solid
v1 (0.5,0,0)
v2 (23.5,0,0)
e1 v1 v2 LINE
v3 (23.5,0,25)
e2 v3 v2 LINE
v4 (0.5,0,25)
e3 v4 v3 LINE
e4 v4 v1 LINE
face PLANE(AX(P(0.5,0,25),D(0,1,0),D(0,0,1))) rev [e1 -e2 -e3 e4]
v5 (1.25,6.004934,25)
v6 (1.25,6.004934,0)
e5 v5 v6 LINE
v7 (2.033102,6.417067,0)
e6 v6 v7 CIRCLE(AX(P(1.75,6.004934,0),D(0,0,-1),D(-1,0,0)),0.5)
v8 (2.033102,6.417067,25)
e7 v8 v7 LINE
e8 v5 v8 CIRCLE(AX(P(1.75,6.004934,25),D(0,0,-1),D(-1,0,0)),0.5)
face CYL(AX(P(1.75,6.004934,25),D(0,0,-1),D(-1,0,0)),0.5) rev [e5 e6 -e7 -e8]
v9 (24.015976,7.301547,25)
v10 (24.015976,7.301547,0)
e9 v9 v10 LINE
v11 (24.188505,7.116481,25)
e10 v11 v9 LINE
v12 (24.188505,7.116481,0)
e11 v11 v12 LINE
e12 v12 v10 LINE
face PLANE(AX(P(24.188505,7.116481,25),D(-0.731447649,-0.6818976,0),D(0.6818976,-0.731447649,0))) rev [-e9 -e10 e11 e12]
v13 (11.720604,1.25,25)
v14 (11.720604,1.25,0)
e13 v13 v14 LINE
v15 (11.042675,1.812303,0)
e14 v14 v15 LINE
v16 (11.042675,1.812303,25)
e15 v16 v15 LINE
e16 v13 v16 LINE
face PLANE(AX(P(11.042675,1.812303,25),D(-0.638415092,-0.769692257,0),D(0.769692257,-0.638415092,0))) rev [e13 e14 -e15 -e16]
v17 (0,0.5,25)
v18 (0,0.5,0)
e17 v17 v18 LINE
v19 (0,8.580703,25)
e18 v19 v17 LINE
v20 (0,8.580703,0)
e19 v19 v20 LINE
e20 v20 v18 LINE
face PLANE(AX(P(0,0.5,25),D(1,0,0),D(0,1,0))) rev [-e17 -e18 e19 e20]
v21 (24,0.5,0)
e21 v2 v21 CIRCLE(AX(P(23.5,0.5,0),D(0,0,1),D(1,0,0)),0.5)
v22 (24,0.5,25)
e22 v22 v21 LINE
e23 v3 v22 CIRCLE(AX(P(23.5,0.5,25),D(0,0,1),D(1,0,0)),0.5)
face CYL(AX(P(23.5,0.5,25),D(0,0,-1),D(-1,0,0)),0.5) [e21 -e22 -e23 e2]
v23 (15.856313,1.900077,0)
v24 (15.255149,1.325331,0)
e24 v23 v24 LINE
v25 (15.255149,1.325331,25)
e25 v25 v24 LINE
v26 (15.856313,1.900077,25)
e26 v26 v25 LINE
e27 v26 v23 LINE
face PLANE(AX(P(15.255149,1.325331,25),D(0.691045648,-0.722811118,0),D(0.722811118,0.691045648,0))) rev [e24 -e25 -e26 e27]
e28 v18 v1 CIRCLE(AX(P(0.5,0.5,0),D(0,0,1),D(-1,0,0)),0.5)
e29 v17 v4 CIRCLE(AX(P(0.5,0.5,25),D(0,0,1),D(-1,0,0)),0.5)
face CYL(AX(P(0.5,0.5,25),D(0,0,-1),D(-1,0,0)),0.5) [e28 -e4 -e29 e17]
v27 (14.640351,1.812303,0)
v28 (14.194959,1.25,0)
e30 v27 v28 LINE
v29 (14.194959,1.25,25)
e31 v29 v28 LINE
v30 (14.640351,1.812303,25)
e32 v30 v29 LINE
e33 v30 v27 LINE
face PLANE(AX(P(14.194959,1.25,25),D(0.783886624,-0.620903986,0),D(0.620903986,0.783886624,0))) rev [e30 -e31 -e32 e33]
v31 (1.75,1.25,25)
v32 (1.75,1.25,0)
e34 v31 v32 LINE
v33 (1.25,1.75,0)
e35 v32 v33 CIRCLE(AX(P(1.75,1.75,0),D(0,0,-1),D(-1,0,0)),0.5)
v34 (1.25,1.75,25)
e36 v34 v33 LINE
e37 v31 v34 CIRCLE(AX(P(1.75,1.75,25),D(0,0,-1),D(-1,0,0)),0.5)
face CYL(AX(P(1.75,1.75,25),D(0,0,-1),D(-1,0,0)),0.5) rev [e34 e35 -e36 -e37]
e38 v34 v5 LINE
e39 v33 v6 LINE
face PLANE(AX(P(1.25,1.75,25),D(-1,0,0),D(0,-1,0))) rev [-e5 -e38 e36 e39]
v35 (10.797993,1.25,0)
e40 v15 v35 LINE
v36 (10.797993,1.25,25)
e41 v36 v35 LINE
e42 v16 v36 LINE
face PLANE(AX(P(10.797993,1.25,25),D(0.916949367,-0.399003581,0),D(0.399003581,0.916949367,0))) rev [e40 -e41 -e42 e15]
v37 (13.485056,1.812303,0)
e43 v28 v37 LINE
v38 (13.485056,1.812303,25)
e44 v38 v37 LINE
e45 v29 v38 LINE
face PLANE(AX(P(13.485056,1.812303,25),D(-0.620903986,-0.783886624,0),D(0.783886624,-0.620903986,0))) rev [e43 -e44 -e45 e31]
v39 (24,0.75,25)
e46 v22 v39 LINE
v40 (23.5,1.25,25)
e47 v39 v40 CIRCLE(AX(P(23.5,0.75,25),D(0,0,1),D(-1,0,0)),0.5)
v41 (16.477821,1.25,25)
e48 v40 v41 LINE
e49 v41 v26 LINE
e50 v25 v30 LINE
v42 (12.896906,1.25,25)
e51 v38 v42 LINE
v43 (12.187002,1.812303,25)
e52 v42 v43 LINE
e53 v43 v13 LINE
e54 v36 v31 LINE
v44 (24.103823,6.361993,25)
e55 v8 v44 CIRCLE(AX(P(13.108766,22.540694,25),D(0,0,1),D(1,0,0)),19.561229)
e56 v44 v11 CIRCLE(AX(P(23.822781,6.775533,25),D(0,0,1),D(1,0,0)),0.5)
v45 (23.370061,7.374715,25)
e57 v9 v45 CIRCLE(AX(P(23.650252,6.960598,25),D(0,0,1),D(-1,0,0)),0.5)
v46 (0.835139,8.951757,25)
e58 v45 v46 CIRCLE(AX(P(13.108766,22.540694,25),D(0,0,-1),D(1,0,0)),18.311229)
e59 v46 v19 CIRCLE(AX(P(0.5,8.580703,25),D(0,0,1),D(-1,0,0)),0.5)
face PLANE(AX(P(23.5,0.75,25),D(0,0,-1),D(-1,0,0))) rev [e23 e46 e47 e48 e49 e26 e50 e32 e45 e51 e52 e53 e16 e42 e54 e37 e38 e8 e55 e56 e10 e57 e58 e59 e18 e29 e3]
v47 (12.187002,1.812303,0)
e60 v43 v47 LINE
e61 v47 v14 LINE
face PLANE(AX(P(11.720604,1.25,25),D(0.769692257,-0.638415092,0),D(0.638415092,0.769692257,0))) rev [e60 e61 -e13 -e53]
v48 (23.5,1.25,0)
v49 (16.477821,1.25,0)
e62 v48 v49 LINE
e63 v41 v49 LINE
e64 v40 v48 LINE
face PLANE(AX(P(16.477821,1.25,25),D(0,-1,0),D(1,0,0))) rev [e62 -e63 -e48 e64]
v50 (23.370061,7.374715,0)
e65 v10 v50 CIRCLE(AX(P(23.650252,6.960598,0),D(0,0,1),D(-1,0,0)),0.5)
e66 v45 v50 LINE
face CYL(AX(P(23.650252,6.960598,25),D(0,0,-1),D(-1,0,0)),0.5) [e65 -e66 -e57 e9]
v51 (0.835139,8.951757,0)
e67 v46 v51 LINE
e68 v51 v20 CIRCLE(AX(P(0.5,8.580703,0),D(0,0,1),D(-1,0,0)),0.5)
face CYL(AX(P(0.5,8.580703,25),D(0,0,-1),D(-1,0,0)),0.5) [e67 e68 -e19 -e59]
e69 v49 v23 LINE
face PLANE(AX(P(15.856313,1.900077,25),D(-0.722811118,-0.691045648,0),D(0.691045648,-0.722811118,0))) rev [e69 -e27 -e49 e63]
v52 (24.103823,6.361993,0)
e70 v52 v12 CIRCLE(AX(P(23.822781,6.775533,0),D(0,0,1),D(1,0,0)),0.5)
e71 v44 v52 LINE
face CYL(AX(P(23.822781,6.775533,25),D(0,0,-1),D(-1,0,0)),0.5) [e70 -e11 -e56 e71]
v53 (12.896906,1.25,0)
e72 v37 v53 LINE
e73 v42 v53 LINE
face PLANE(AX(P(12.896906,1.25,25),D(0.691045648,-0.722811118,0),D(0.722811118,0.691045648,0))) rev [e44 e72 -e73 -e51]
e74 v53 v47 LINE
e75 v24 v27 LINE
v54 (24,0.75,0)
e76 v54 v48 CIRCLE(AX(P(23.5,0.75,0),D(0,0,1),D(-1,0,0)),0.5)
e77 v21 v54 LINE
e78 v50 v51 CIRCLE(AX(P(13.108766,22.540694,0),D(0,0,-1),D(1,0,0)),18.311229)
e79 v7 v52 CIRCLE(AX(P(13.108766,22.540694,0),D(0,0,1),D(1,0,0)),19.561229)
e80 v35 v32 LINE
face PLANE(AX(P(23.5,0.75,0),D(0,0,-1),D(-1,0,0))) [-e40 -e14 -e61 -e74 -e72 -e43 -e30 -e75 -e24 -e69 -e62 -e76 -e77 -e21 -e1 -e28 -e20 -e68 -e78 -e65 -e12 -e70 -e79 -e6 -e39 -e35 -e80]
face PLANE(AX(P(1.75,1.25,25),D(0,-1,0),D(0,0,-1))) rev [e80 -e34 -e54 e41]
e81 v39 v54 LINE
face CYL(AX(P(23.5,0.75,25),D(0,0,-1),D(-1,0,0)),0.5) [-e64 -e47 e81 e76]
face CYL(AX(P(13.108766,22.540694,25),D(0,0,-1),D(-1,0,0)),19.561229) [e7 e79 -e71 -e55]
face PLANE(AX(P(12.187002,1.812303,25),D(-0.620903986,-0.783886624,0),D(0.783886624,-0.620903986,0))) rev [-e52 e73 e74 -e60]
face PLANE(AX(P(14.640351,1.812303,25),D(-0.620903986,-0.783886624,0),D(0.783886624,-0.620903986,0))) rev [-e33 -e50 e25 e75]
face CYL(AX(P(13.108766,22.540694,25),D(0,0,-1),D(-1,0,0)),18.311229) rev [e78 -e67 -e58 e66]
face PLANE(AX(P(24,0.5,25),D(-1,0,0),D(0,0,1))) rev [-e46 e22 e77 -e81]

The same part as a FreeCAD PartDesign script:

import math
import FreeCAD as App
import Part
import Sketcher

doc = App.newDocument("Part")
body = doc.addObject("PartDesign::Body", "Body")

sketch1 = body.newObject("Sketcher::SketchObject", "Sketch")
sketch1.AttachmentSupport = (doc.getObject("XY_Plane"), [""])
sketch1.MapMode = "FlatFace"
sketch1.addGeometry(Part.LineSegment(App.Vector(0.5, 0, 0), App.Vector(23.5, 0, 0)), False)
sketch1.addGeometry(Part.ArcOfCircle(Part.Circle(App.Vector(23.5, 0.5, 0), App.Vector(0, 0, 1), 0.5), math.radians(-90), math.radians(0)), False)
sketch1.addGeometry(Part.LineSegment(App.Vector(24, 0.5, 0), App.Vector(24, 0.75, 0)), False)
sketch1.addGeometry(Part.ArcOfCircle(Part.Circle(App.Vector(23.5, 0.75, 0), App.Vector(0, 0, 1), 0.5), math.radians(0), math.radians(90)), False)
sketch1.addGeometry(Part.LineSegment(App.Vector(23.5, 1.25, 0), App.Vector(16.48, 1.25, 0)), False)
sketch1.addGeometry(Part.LineSegment(App.Vector(16.48, 1.25, 0), App.Vector(15.86, 1.9, 0)), False)
sketch1.addGeometry(Part.LineSegment(App.Vector(15.86, 1.9, 0), App.Vector(15.26, 1.33, 0)), False)
sketch1.addGeometry(Part.LineSegment(App.Vector(15.26, 1.33, 0), App.Vector(14.64, 1.81, 0)), False)
sketch1.addGeometry(Part.LineSegment(App.Vector(14.64, 1.81, 0), App.Vector(14.19, 1.25, 0)), False)
sketch1.addGeometry(Part.LineSegment(App.Vector(14.19, 1.25, 0), App.Vector(13.49, 1.81, 0)), False)
sketch1.addGeometry(Part.LineSegment(App.Vector(13.49, 1.81, 0), App.Vector(12.9, 1.25, 0)), False)
sketch1.addGeometry(Part.LineSegment(App.Vector(12.9, 1.25, 0), App.Vector(12.19, 1.81, 0)), False)
sketch1.addGeometry(Part.LineSegment(App.Vector(12.19, 1.81, 0), App.Vector(11.72, 1.25, 0)), False)
sketch1.addGeometry(Part.LineSegment(App.Vector(11.72, 1.25, 0), App.Vector(11.04, 1.81, 0)), False)
sketch1.addGeometry(Part.LineSegment(App.Vector(11.04, 1.81, 0), App.Vector(10.8, 1.25, 0)), False)
sketch1.addGeometry(Part.LineSegment(App.Vector(10.8, 1.25, 0), App.Vector(1.75, 1.25, 0)), False)
sketch1.addGeometry(Part.ArcOfCircle(Part.Circle(App.Vector(1.75, 1.75, 0), App.Vector(0, 0, 1), 0.5), math.radians(180), math.radians(270)), False)
sketch1.addGeometry(Part.LineSegment(App.Vector(1.25, 1.75, 0), App.Vector(1.25, 6, 0)), False)
sketch1.addGeometry(Part.ArcOfCircle(Part.Circle(App.Vector(1.75, 6, 0), App.Vector(0, 0, 1), 0.5), math.radians(56), math.radians(180)), False)
sketch1.addGeometry(Part.ArcOfCircle(Part.Circle(App.Vector(13.11, 22.54, 0), App.Vector(0, 0, 1), 19.56), math.radians(-124), math.radians(-99)), False)
sketch1.addGeometry(Part.ArcOfCircle(Part.Circle(App.Vector(13.11, 22.54, 0), App.Vector(0, 0, 1), 19.56), math.radians(-99), math.radians(-56)), False)
sketch1.addGeometry(Part.ArcOfCircle(Part.Circle(App.Vector(23.82, 6.78, 0), App.Vector(0, 0, 1), 0.5), math.radians(-56), math.radians(43)), False)
sketch1.addGeometry(Part.LineSegment(App.Vector(24.19, 7.12, 0), App.Vector(24.02, 7.3, 0)), False)
sketch1.addGeometry(Part.ArcOfCircle(Part.Circle(App.Vector(23.65, 6.96, 0), App.Vector(0, 0, 1), 0.5), math.radians(43), math.radians(124)), False)
sketch1.addGeometry(Part.ArcOfCircle(Part.Circle(App.Vector(13.11, 22.54, 0), App.Vector(0, 0, 1), 18.31), math.radians(-132), math.radians(-56)), False)
sketch1.addGeometry(Part.ArcOfCircle(Part.Circle(App.Vector(0.5, 8.58, 0), App.Vector(0, 0, 1), 0.5), math.radians(48), math.radians(180)), False)
sketch1.addGeometry(Part.LineSegment(App.Vector(0, 8.58, 0), App.Vector(0, 0.5, 0)), False)
sketch1.addGeometry(Part.ArcOfCircle(Part.Circle(App.Vector(0.5, 0.5, 0), App.Vector(0, 0, 1), 0.5), math.radians(180), math.radians(270)), False)
sketch1.addConstraint(Sketcher.Constraint("Tangent", 0, 2, 1, 1))
sketch1.addConstraint(Sketcher.Constraint("Tangent", 1, 2, 2, 1))
sketch1.addConstraint(Sketcher.Constraint("Tangent", 2, 2, 3, 1))
sketch1.addConstraint(Sketcher.Constraint("Tangent", 3, 2, 4, 1))
sketch1.addConstraint(Sketcher.Constraint("Coincident", 4, 2, 5, 1))
sketch1.addConstraint(Sketcher.Constraint("Coincident", 5, 2, 6, 1))
sketch1.addConstraint(Sketcher.Constraint("Coincident", 6, 2, 7, 1))
sketch1.addConstraint(Sketcher.Constraint("Coincident", 7, 2, 8, 1))
sketch1.addConstraint(Sketcher.Constraint("Coincident", 8, 2, 9, 1))
sketch1.addConstraint(Sketcher.Constraint("Coincident", 9, 2, 10, 1))
sketch1.addConstraint(Sketcher.Constraint("Coincident", 10, 2, 11, 1))
sketch1.addConstraint(Sketcher.Constraint("Coincident", 11, 2, 12, 1))
sketch1.addConstraint(Sketcher.Constraint("Coincident", 12, 2, 13, 1))
sketch1.addConstraint(Sketcher.Constraint("Coincident", 13, 2, 14, 1))
sketch1.addConstraint(Sketcher.Constraint("Coincident", 14, 2, 15, 1))
sketch1.addConstraint(Sketcher.Constraint("Tangent", 15, 2, 16, 2))
sketch1.addConstraint(Sketcher.Constraint("Tangent", 16, 1, 17, 1))
sketch1.addConstraint(Sketcher.Constraint("Tangent", 17, 2, 18, 2))
sketch1.addConstraint(Sketcher.Constraint("Tangent", 18, 1, 19, 1))
sketch1.addConstraint(Sketcher.Constraint("Tangent", 19, 2, 20, 1))
sketch1.addConstraint(Sketcher.Constraint("Tangent", 20, 2, 21, 1))
sketch1.addConstraint(Sketcher.Constraint("Tangent", 21, 2, 22, 1))
sketch1.addConstraint(Sketcher.Constraint("Tangent", 22, 2, 23, 1))
sketch1.addConstraint(Sketcher.Constraint("Tangent", 23, 2, 24, 2))
sketch1.addConstraint(Sketcher.Constraint("Tangent", 24, 1, 25, 1))
sketch1.addConstraint(Sketcher.Constraint("Tangent", 25, 2, 26, 1))
sketch1.addConstraint(Sketcher.Constraint("Tangent", 26, 2, 27, 1))
sketch1.addConstraint(Sketcher.Constraint("Tangent", 27, 2, 0, 1))
sketch1.addConstraint(Sketcher.Constraint("Horizontal", 0))
sketch1.addConstraint(Sketcher.Constraint("Vertical", 2))
sketch1.addConstraint(Sketcher.Constraint("Horizontal", 4))
sketch1.addConstraint(Sketcher.Constraint("Horizontal", 15))
sketch1.addConstraint(Sketcher.Constraint("Vertical", 17))
sketch1.addConstraint(Sketcher.Constraint("Vertical", 26))
sketch1.addConstraint(Sketcher.Constraint("Coincident", 24, 3, 19, 3))
sketch1.addConstraint(Sketcher.Constraint("Equal", 1, 3))
sketch1.addConstraint(Sketcher.Constraint("Equal", 3, 16))
sketch1.addConstraint(Sketcher.Constraint("Equal", 16, 18))
sketch1.addConstraint(Sketcher.Constraint("Equal", 19, 20))
sketch1.addConstraint(Sketcher.Constraint("Equal", 18, 21))
sketch1.addConstraint(Sketcher.Constraint("Equal", 21, 23))
sketch1.addConstraint(Sketcher.Constraint("Equal", 23, 25))
sketch1.addConstraint(Sketcher.Constraint("Equal", 25, 27))
sketch1.addConstraint(Sketcher.Constraint("PointOnObject", 0, 2, -1))
sketch1.addConstraint(Sketcher.Constraint("PointOnObject", 25, 2, -2))
sketch1.addConstraint(Sketcher.Constraint("Perpendicular", 5, 6))
sketch1.addConstraint(Sketcher.Constraint("Perpendicular", 7, 8))
sketch1.addConstraint(Sketcher.Constraint("Perpendicular", 8, 9))
sketch1.addConstraint(Sketcher.Constraint("Parallel", 6, 10))
sketch1.addConstraint(Sketcher.Constraint("Parallel", 9, 11))
sketch1.addConstraint(Sketcher.Constraint("Perpendicular", 12, 13))
sketch1.addConstraint(Sketcher.Constraint("Horizontal", 4, 2, 8, 2))
sketch1.addConstraint(Sketcher.Constraint("Horizontal", 7, 2, 9, 2))
sketch1.addConstraint(Sketcher.Constraint("Horizontal", 8, 2, 10, 2))
sketch1.addConstraint(Sketcher.Constraint("Horizontal", 9, 2, 11, 2))
sketch1.addConstraint(Sketcher.Constraint("Horizontal", 10, 2, 12, 2))
sketch1.addConstraint(Sketcher.Constraint("Horizontal", 11, 2, 13, 2))
sketch1.addConstraint(Sketcher.Constraint("Horizontal", 12, 2, 14, 2))
sketch1.addConstraint(Sketcher.Constraint("Radius", 1, 0.5))
sketch1.addConstraint(Sketcher.Constraint("DistanceX", 0, 1, 0, 2, 23.0))
sketch1.addConstraint(Sketcher.Constraint("DistanceY", 2, 1, 2, 2, 0.25))
sketch1.addConstraint(Sketcher.Constraint("DistanceX", -1, 1, 16, 3, 1.75))
sketch1.addConstraint(Sketcher.Constraint("Radius", 19, 19.561229))
sketch1.addConstraint(Sketcher.Constraint("Radius", 24, 18.311229))
sketch1.addConstraint(Sketcher.Constraint("Distance", 10, 0.813699))
sketch1.addConstraint(Sketcher.Constraint("DistanceX", 4, 2, 4, 1, 7.022179))
sketch1.addConstraint(Sketcher.Constraint("DistanceY", -1, 1, 23, 3, 6.960598))
sketch1.addConstraint(Sketcher.Constraint("DistanceY", 18, 3, 21, 3, 0.770598))
sketch1.addConstraint(Sketcher.Constraint("DistanceX", 7, 2, 6, 2, 0.614798))
sketch1.addConstraint(Sketcher.Constraint("DistanceX", 12, 2, 10, 2, 1.176301))
sketch1.addConstraint(Sketcher.Constraint("Distance", 9, 0.90562))
sketch1.addConstraint(Sketcher.Constraint("Distance", 13, 0.88078))
sketch1.addConstraint(Sketcher.Constraint("DistanceX", 15, 2, 15, 1, 9.047993))
sketch1.addConstraint(Sketcher.Constraint("DistanceY", 17, 1, 17, 2, 4.254934))
sketch1.addConstraint(Sketcher.Constraint("DistanceY", 26, 2, 26, 1, 8.080703))
sketch1.addConstraint(Sketcher.Constraint("DistanceX", -1, 1, 6, 2, 15.255149))
sketch1.addConstraint(Sketcher.Constraint("DistanceX", -1, 1, 19, 2, 10.180078))
pad1 = body.newObject("PartDesign::Pad", "Pad")
pad1.Profile = sketch1
pad1.Length = 25

doc.recompute()
